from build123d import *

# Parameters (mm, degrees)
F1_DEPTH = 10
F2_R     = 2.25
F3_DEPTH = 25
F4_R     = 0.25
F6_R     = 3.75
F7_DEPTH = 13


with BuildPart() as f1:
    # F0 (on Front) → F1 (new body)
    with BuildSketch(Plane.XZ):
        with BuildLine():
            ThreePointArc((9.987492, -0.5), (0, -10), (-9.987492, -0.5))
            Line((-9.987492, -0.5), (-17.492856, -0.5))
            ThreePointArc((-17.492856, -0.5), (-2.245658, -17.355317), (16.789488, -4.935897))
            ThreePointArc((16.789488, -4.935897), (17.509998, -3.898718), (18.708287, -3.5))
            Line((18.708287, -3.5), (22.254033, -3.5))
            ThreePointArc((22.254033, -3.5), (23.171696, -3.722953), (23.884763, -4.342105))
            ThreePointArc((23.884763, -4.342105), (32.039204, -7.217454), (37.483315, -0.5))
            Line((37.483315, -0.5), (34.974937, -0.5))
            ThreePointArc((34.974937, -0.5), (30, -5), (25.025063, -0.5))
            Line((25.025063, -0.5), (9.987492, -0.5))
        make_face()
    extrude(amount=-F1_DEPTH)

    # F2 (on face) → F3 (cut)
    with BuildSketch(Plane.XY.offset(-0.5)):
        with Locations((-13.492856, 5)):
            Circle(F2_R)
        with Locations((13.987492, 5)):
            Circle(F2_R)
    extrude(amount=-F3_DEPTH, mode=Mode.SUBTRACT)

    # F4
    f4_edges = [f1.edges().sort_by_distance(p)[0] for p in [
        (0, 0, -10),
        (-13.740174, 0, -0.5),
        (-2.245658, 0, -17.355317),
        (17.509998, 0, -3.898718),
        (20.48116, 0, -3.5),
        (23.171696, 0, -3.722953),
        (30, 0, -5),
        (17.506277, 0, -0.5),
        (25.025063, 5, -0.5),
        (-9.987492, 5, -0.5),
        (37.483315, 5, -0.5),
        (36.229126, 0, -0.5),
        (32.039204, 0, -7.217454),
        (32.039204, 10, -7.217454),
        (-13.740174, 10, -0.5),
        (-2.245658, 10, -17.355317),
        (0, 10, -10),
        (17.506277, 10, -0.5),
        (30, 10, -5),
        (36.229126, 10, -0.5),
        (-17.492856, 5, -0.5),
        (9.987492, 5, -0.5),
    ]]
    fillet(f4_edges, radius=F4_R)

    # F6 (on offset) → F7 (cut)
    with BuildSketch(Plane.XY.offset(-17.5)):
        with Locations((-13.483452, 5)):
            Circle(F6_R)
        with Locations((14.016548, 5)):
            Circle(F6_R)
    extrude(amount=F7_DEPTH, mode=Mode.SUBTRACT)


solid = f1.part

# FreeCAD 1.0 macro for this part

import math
import FreeCAD as App
import Part
import Sketcher


def edges_at(feature, points):
    """Names of the edges that pass closest to the given points."""
    edges = feature.Shape.Edges
    near = lambda p: min(range(len(edges)), key=lambda i: edges[i].distToShape(Part.Vertex(*p))[0])
    return sorted({f"Edge{near(p) + 1}" for p in points})

doc = App.newDocument("Part")
params = doc.addObject("Spreadsheet::Sheet", "Params")
for row, (alias, value) in enumerate([
    ("sketch1_radius", "10 mm"),
    ("sketch1_radius2", "2.000001 mm"),
    ("sketch1_radius3", "1.999998 mm"),
    ("sketch1_radius4", "5 mm"),
    ("sketch1_radius5", "17.5 mm"),
    ("pad1_length", "10 mm"),
    ("sketch2_diameter", "4.5 mm"),
    ("pocket1_length", "25 mm"),
    ("fillet_radius", "0.25 mm"),
    ("sketch3_diameter", "7.5 mm"),
    ("pocket2_length", "13 mm"),
], start=1):
    params.set(f"A{row}", alias)
    params.set(f"B{row}", "=" + value)
    params.setAlias(f"B{row}", alias)

body = doc.addObject("PartDesign::Body", "Body")

# Sketch on XZ plane
sketch1 = body.newObject("Sketcher::SketchObject", "Sketch")
sketch1.AttachmentSupport = (doc.getObject("XZ_Plane"), [""])
sketch1.MapMode = "FlatFace"
sketch1.addGeometry([
    Part.ArcOfCircle(Part.Circle(App.Vector(0, 0, 0), App.Vector(0, 0, 1), 10), math.radians(-177), math.radians(-3)),  # 0
    Part.LineSegment(App.Vector(-10, -0.5, 0), App.Vector(-17.5, -0.5, 0)),  # 1
    Part.ArcOfCircle(Part.Circle(App.Vector(0, 0, 0), App.Vector(0, 0, 1), 17.5), math.radians(-178), math.radians(-16)),  # 2
    Part.ArcOfCircle(Part.Circle(App.Vector(18.7, -5.5, 0), App.Vector(0, 0, 1), 2), math.radians(90), math.radians(164)),  # 3
    Part.LineSegment(App.Vector(18.7, -3.5, 0), App.Vector(22.3, -3.5, 0)),  # 4
    Part.ArcOfCircle(Part.Circle(App.Vector(22.3, -5.5, 0), App.Vector(0, 0, 1), 2), math.radians(35), math.radians(90)),  # 5
    Part.ArcOfCircle(Part.Circle(App.Vector(30, 0, 0), App.Vector(0, 0, 1), 7.5), math.radians(-145), math.radians(-4)),  # 6
    Part.LineSegment(App.Vector(37.5, -0.5, 0), App.Vector(35, -0.5, 0)),  # 7
    Part.ArcOfCircle(Part.Circle(App.Vector(30, 0, 0), App.Vector(0, 0, 1), 5), math.radians(-174), math.radians(-6)),  # 8
    Part.LineSegment(App.Vector(25, -0.5, 0), App.Vector(10, -0.5, 0)),  # 9
], False)
sketch1.addConstraint([
    Sketcher.Constraint("Coincident", 0, 1, 1, 1),
    Sketcher.Constraint("Coincident", 1, 2, 2, 1),
    Sketcher.Constraint("Tangent", 2, 2, 3, 2),
    Sketcher.Constraint("Tangent", 3, 1, 4, 1),
    Sketcher.Constraint("Tangent", 4, 2, 5, 2),
    Sketcher.Constraint("Tangent", 5, 1, 6, 1),
    Sketcher.Constraint("Coincident", 6, 2, 7, 1),
    Sketcher.Constraint("Coincident", 7, 2, 8, 2),
    Sketcher.Constraint("Coincident", 8, 1, 9, 1),
    Sketcher.Constraint("Coincident", 9, 2, 0, 2),
    Sketcher.Constraint("Horizontal", 1),
    Sketcher.Constraint("Horizontal", 4),
    Sketcher.Constraint("Horizontal", 7),
    Sketcher.Constraint("Horizontal", 9),
    Sketcher.Constraint("Coincident", 0, 3, -1, 1),
    Sketcher.Constraint("Coincident", 2, 3, -1, 1),
    Sketcher.Constraint("Coincident", 8, 3, 6, 3),
    Sketcher.Constraint("PointOnObject", 6, 3, -1),
    Sketcher.Constraint("Horizontal", 1, 2, 6, 2),
    Sketcher.Constraint("Horizontal", 7, 2, 8, 1),
    Sketcher.Constraint("Radius", 0, 10.0),
    Sketcher.Constraint("Radius", 3, 2.000001),
    Sketcher.Constraint("Radius", 5, 1.999998),
    Sketcher.Constraint("Radius", 8, 5.0),
    Sketcher.Constraint("Radius", 2, 17.5),
    Sketcher.Constraint("Radius", 6, 7.5),
    Sketcher.Constraint("DistanceX", -1, 1, 6, 3, 30.0),
    Sketcher.Constraint("DistanceY", 3, 3, 0, 1, 5.000001),
    Sketcher.Constraint("DistanceY", 3, 3, -1, 1, 5.500001),
])
sketch1.setExpression("Constraints[20]", "Params.sketch1_radius")
sketch1.setExpression("Constraints[21]", "Params.sketch1_radius2")
sketch1.setExpression("Constraints[22]", "Params.sketch1_radius3")
sketch1.setExpression("Constraints[23]", "Params.sketch1_radius4")
sketch1.setExpression("Constraints[24]", "Params.sketch1_radius5")
pad1 = body.newObject("PartDesign::Pad", "Pad")
pad1.Profile = sketch1
pad1.setExpression("Length", "Params.pad1_length")
pad1.Reversed = True

# Sketch on XY plane
sketch2 = body.newObject("Sketcher::SketchObject", "Sketch001")
sketch2.AttachmentSupport = (doc.getObject("XY_Plane"), [""])
sketch2.MapMode = "FlatFace"
sketch2.AttachmentOffset = App.Placement(App.Vector(0, 0, -0.5), App.Rotation())
sketch2.addGeometry([
    Part.Circle(App.Vector(-13.5, 5, 0), App.Vector(0, 0, 1), 2.2),
    Part.Circle(App.Vector(14, 5, 0), App.Vector(0, 0, 1), 2.2),
], False)
sketch2.addConstraint([
    Sketcher.Constraint("Equal", 0, 1),
    Sketcher.Constraint("Horizontal", 0, 3, 1, 3),
    Sketcher.Constraint("Diameter", 0, 4.5),
    Sketcher.Constraint("DistanceY", -1, 1, 0, 3, 5.0),
    Sketcher.Constraint("DistanceX", 0, 3, -1, 1, 13.492856),
    Sketcher.Constraint("DistanceX", -1, 1, 1, 3, 13.987492),
])
sketch2.setExpression("Constraints[2]", "Params.sketch2_diameter")
pocket1 = body.newObject("PartDesign::Pocket", "Pocket")
pocket1.Profile = sketch2
pocket1.setExpression("Length", "Params.pocket1_length")
doc.recompute()

fillet = body.newObject("PartDesign::Fillet", "Fillet")
fillet.Base = (pocket1, edges_at(pocket1, [
    (0, 0, -10),
    (-13.74, 0, -0.5),
    (-2.246, 0, -17.355),
    (17.51, 0, -3.899),
    (20.481, 0, -3.5),
    (23.172, 0, -3.723),
    (30, 0, -5),
    (17.506, 0, -0.5),
    (25.025, 5, -0.5),
    (-9.987, 5, -0.5),
    (37.483, 5, -0.5),
    (36.229, 0, -0.5),
    (32.039, 0, -7.217),
    (32.039, 10, -7.217),
    (-13.74, 10, -0.5),
    (-2.246, 10, -17.355),
    (0, 10, -10),
    (17.506, 10, -0.5),
    (30, 10, -5),
    (36.229, 10, -0.5),
    (-17.493, 5, -0.5),
    (9.987, 5, -0.5),
]))
fillet.setExpression("Radius", "Params.fillet_radius")

# Sketch on XY plane
sketch3 = body.newObject("Sketcher::SketchObject", "Sketch002")
sketch3.AttachmentSupport = (doc.getObject("XY_Plane"), [""])
sketch3.MapMode = "FlatFace"
sketch3.AttachmentOffset = App.Placement(App.Vector(0, 0, -17.5), App.Rotation())
sketch3.addGeometry([
    Part.Circle(App.Vector(-13.5, 5, 0), App.Vector(0, 0, 1), 3.8),
    Part.Circle(App.Vector(14, 5, 0), App.Vector(0, 0, 1), 3.8),
], False)
sketch3.addConstraint([
    Sketcher.Constraint("Equal", 0, 1),
    Sketcher.Constraint("Horizontal", 0, 3, 1, 3),
    Sketcher.Constraint("Diameter", 0, 7.5),
    Sketcher.Constraint("DistanceY", -1, 1, 0, 3, 5.0),
    Sketcher.Constraint("DistanceX", 0, 3, 1, 3, 27.5),
    Sketcher.Constraint("DistanceX", 0, 3, -1, 1, 13.483452),
])
sketch3.setExpression("Constraints[2]", "Params.sketch3_diameter")
pocket2 = body.newObject("PartDesign::Pocket", "Pocket001")
pocket2.Profile = sketch3
pocket2.setExpression("Length", "Params.pocket2_length")
pocket2.Reversed = True

doc.recompute()
